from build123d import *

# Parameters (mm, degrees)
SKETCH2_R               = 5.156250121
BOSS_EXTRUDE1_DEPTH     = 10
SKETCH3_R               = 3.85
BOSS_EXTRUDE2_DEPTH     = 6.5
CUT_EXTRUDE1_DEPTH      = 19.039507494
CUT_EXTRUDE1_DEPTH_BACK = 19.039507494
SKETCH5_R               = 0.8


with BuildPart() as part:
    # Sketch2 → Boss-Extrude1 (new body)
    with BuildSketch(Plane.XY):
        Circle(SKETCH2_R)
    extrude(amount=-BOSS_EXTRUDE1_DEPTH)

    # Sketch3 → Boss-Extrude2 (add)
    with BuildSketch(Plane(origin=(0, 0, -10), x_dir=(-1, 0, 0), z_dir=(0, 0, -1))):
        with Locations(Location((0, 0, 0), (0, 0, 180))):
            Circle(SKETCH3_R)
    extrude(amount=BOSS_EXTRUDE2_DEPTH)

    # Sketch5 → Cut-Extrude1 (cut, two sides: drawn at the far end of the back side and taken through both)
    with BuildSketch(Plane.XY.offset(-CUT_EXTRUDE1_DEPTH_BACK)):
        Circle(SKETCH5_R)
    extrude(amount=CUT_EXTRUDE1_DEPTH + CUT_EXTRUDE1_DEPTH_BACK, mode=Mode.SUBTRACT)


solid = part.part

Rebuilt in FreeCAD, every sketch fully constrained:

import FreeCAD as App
import Part
import Sketcher

doc = App.newDocument("Part")
body = doc.addObject("PartDesign::Body", "Body")

# Sketch on XY plane
sketch1 = body.newObject("Sketcher::SketchObject", "Sketch")
sketch1.AttachmentSupport = (doc.getObject("XY_Plane"), [""])
sketch1.MapMode = "FlatFace"
sketch1.addGeometry(Part.Circle(App.Vector(0, 0, 0), App.Vector(0, 0, 1), 5), False)
sketch1.addConstraint([
    Sketcher.Constraint("Coincident", 0, 3, -1, 1),
    Sketcher.Constraint("Diameter", 0, 10.3125),
])
pad1 = body.newObject("PartDesign::Pad", "Pad")
pad1.Profile = sketch1
pad1.Length = 10
pad1.Reversed = True

# Sketch on XY plane
sketch2 = body.newObject("Sketcher::SketchObject", "Sketch001")
sketch2.AttachmentSupport = (doc.getObject("XY_Plane"), [""])
sketch2.MapMode = "FlatFace"
sketch2.AttachmentOffset = App.Placement(App.Vector(0, 0, -10), App.Rotation())
sketch2.addGeometry(Part.Circle(App.Vector(0, 0, 0), App.Vector(0, 0, 1), 3.9), False)
sketch2.addConstraint([
    Sketcher.Constraint("Coincident", 0, 3, -1, 1),
    Sketcher.Constraint("Diameter", 0, 7.7),
])
pad2 = body.newObject("PartDesign::Pad", "Pad001")
pad2.Profile = sketch2
pad2.Length = 6.5
pad2.Reversed = True

# Sketch on XY plane
sketch3 = body.newObject("Sketcher::SketchObject", "Sketch002")
sketch3.AttachmentSupport = (doc.getObject("XY_Plane"), [""])
sketch3.MapMode = "FlatFace"
sketch3.addGeometry(Part.Circle(App.Vector(0, 0, 0), App.Vector(0, 0, 1), 0.8), False)
sketch3.addConstraint([
    Sketcher.Constraint("Coincident", 0, 3, -1, 1),
    Sketcher.Constraint("Diameter", 0, 1.6),
])
pocket1 = body.newObject("PartDesign::Pocket", "Pocket")
pocket1.Profile = sketch3
pocket1.Type = "ThroughAll"
pocket1.Midplane = True

doc.recompute()
